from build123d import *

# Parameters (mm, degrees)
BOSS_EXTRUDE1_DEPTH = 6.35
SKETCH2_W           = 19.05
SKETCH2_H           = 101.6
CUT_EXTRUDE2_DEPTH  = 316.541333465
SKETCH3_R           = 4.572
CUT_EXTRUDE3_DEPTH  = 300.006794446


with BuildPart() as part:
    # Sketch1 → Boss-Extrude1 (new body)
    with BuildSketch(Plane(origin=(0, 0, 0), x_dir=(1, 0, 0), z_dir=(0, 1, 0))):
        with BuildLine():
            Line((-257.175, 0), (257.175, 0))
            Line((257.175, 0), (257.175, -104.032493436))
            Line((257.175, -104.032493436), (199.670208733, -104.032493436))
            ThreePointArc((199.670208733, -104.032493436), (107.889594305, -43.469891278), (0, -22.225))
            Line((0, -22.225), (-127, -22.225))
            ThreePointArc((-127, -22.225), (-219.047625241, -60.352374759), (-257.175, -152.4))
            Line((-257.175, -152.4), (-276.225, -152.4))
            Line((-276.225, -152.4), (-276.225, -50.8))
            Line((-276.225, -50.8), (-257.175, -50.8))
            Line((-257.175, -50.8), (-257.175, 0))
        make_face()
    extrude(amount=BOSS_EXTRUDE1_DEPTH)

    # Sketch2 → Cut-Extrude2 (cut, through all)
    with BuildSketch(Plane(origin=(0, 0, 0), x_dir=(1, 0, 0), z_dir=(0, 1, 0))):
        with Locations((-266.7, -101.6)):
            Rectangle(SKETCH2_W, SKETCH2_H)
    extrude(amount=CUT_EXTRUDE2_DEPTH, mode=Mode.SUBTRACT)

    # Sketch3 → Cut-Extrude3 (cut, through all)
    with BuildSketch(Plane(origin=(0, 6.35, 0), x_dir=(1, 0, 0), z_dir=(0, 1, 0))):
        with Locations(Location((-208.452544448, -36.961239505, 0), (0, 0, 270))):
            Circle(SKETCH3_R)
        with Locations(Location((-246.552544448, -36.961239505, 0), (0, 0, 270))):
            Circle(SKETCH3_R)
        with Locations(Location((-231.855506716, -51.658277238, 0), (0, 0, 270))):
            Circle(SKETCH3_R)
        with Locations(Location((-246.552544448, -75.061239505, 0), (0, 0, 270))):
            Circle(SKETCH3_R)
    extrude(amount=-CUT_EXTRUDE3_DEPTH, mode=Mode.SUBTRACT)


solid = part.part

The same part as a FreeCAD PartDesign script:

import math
import FreeCAD as App
import Part
import Sketcher

V = App.Vector
Q = App.Units.Quantity

doc = App.newDocument("Part")
body = doc.addObject("PartDesign::Body", "Body")

sketch1 = body.newObject("Sketcher::SketchObject", "Sketch")
sketch1.AttachmentSupport = (doc.getObject("XZ_Plane"), [""])
sketch1.MapMode = "FlatFace"
sketch1.addGeometry(Part.LineSegment(V(257, 0, 0), V(-257, 0, 0)), False)
sketch1.addGeometry(Part.LineSegment(V(-257, 0, 0), V(-257, 51, 0)), False)
sketch1.addGeometry(Part.LineSegment(V(-257, 51, 0), V(-276, 51, 0)), False)
sketch1.addGeometry(Part.LineSegment(V(-276, 51, 0), V(-276, 152, 0)), False)
sketch1.addGeometry(Part.LineSegment(V(-276, 152, 0), V(-257, 152, 0)), False)
sketch1.addGeometry(Part.ArcOfCircle(Part.Circle(V(-127, 152, 0), V(0, 0, 1), 130), math.radians(180), math.radians(270)), False)
sketch1.addGeometry(Part.LineSegment(V(-127, 22, 0), V(0, 22, 0)), False)
sketch1.addGeometry(Part.ArcOfCircle(Part.Circle(V(0, 307, 0), V(0, 0, 1), 285), math.radians(-90), math.radians(-45)), False)
sketch1.addGeometry(Part.LineSegment(V(200, 104, 0), V(257, 104, 0)), False)
sketch1.addGeometry(Part.LineSegment(V(257, 104, 0), V(257, 0, 0)), False)
sketch1.addConstraint(Sketcher.Constraint("Coincident", 0, 2, 1, 1))
sketch1.addConstraint(Sketcher.Constraint("Coincident", 1, 2, 2, 1))
sketch1.addConstraint(Sketcher.Constraint("Coincident", 2, 2, 3, 1))
sketch1.addConstraint(Sketcher.Constraint("Coincident", 3, 2, 4, 1))
sketch1.addConstraint(Sketcher.Constraint("Coincident", 4, 2, 5, 1))
sketch1.addConstraint(Sketcher.Constraint("Tangent", 5, 2, 6, 1))
sketch1.addConstraint(Sketcher.Constraint("Tangent", 6, 2, 7, 1))
sketch1.addConstraint(Sketcher.Constraint("Coincident", 7, 2, 8, 1))
sketch1.addConstraint(Sketcher.Constraint("Coincident", 8, 2, 9, 1))
sketch1.addConstraint(Sketcher.Constraint("Coincident", 9, 2, 0, 1))
sketch1.addConstraint(Sketcher.Constraint("Horizontal", 0))
sketch1.addConstraint(Sketcher.Constraint("Vertical", 1))
sketch1.addConstraint(Sketcher.Constraint("Horizontal", 2))
sketch1.addConstraint(Sketcher.Constraint("Vertical", 3))
sketch1.addConstraint(Sketcher.Constraint("Horizontal", 4))
sketch1.addConstraint(Sketcher.Constraint("Horizontal", 6))
sketch1.addConstraint(Sketcher.Constraint("Horizontal", 8))
sketch1.addConstraint(Sketcher.Constraint("Vertical", 9))
sketch1.addConstraint(Sketcher.Constraint("Symmetric", 0, 2, 9, 2, -1, 1))
sketch1.addConstraint(Sketcher.Constraint("PointOnObject", 7, 3, -2))
sketch1.addConstraint(Sketcher.Constraint("Horizontal", 5, 3, 3, 2))
sketch1.addConstraint(Sketcher.Constraint("Vertical", 1, 2, 4, 2))
sketch1.addConstraint(Sketcher.Constraint("DistanceX", 6, 1, 6, 2, Q("5 in")))
sketch1.addConstraint(Sketcher.Constraint("DistanceY", 1, 1, 1, 2, Q("2 in")))
sketch1.addConstraint(Sketcher.Constraint("DistanceY", 3, 1, 3, 2, Q("4 in")))
sketch1.addConstraint(Sketcher.Constraint("Radius", 5, Q("5.125 in")))
sketch1.addConstraint(Sketcher.Constraint("DistanceX", 2, 2, 2, 1, Q("0.75 in")))
sketch1.addConstraint(Sketcher.Constraint("Radius", 7, 284.574532))
sketch1.addConstraint(Sketcher.Constraint("DistanceX", 8, 1, 8, 2, 57.504791))
pad1 = body.newObject("PartDesign::Pad", "Pad")
pad1.Profile = sketch1
pad1.Length = Q("0.25 in")
pad1.Reversed = True

sketch2 = body.newObject("Sketcher::SketchObject", "Sketch001")
sketch2.AttachmentSupport = (doc.getObject("XZ_Plane"), [""])
sketch2.MapMode = "FlatFace"
sketch2.addGeometry(Part.LineSegment(V(-276, 51, 0), V(-276, 152, 0)), False)
sketch2.addGeometry(Part.LineSegment(V(-276, 152, 0), V(-257, 152, 0)), False)
sketch2.addGeometry(Part.LineSegment(V(-257, 152, 0), V(-257, 51, 0)), False)
sketch2.addGeometry(Part.LineSegment(V(-257, 51, 0), V(-276, 51, 0)), False)
sketch2.addConstraint(Sketcher.Constraint("Coincident", 0, 2, 1, 1))
sketch2.addConstraint(Sketcher.Constraint("Coincident", 1, 2, 2, 1))
sketch2.addConstraint(Sketcher.Constraint("Coincident", 2, 2, 3, 1))
sketch2.addConstraint(Sketcher.Constraint("Coincident", 3, 2, 0, 1))
sketch2.addConstraint(Sketcher.Constraint("Vertical", 0))
sketch2.addConstraint(Sketcher.Constraint("Horizontal", 1))
sketch2.addConstraint(Sketcher.Constraint("Vertical", 2))
sketch2.addConstraint(Sketcher.Constraint("Horizontal", 3))
sketch2.addConstraint(Sketcher.Constraint("DistanceY", 0, 1, 0, 2, Q("4 in")))
sketch2.addConstraint(Sketcher.Constraint("DistanceY", -1, 1, 0, 2, Q("6 in")))
sketch2.addConstraint(Sketcher.Constraint("DistanceX", 1, 1, 1, 2, Q("0.75 in")))
sketch2.addConstraint(Sketcher.Constraint("DistanceX", 0, 2, -1, 1, Q("10.875 in")))
pocket1 = body.newObject("PartDesign::Pocket", "Pocket")
pocket1.Profile = sketch2
pocket1.Type = "ThroughAll"

sketch3 = body.newObject("Sketcher::SketchObject", "Sketch002")
sketch3.AttachmentSupport = (doc.getObject("XZ_Plane"), [""])
sketch3.MapMode = "FlatFace"
sketch3.AttachmentOffset = App.Placement(V(0, 0, -0.25 * 25.4), App.Rotation())
sketch3.addGeometry(Part.Circle(V(-208.5, 37, 0), V(0, 0, 1), 4.6), False)
sketch3.addGeometry(Part.Circle(V(-246.6, 37, 0), V(0, 0, 1), 4.6), False)
sketch3.addGeometry(Part.Circle(V(-231.9, 51.7, 0), V(0, 0, 1), 4.6), False)
sketch3.addGeometry(Part.Circle(V(-246.6, 75.1, 0), V(0, 0, 1), 4.6), False)
sketch3.addConstraint(Sketcher.Constraint("Equal", 0, 1))
sketch3.addConstraint(Sketcher.Constraint("Equal", 1, 2))
sketch3.addConstraint(Sketcher.Constraint("Equal", 2, 3))
sketch3.addConstraint(Sketcher.Constraint("Horizontal", 0, 3, 1, 3))
sketch3.addConstraint(Sketcher.Constraint("Vertical", 1, 3, 3, 3))
sketch3.addConstraint(Sketcher.Constraint("Diameter", 0, Q("0.36 in")))
sketch3.addConstraint(Sketcher.Constraint("DistanceX", 1, 3, 0, 3, Q("1.5 in")))
sketch3.addConstraint(Sketcher.Constraint("DistanceY", 1, 3, 3, 3, Q("1.5 in")))
sketch3.addConstraint(Sketcher.Constraint("DistanceY", -1, 1, 0, 3, 36.96124))
sketch3.addConstraint(Sketcher.Constraint("DistanceX", 0, 3, -1, 1, 208.452544))
sketch3.addConstraint(Sketcher.Constraint("DistanceX", 2, 3, -1, 1, 231.855507))
sketch3.addConstraint(Sketcher.Constraint("DistanceY", -1, 1, 2, 3, 51.658277))
pocket2 = body.newObject("PartDesign::Pocket", "Pocket001")
pocket2.Profile = sketch3
pocket2.Type = "ThroughAll"
pocket2.Reversed = True

doc.recompute()
